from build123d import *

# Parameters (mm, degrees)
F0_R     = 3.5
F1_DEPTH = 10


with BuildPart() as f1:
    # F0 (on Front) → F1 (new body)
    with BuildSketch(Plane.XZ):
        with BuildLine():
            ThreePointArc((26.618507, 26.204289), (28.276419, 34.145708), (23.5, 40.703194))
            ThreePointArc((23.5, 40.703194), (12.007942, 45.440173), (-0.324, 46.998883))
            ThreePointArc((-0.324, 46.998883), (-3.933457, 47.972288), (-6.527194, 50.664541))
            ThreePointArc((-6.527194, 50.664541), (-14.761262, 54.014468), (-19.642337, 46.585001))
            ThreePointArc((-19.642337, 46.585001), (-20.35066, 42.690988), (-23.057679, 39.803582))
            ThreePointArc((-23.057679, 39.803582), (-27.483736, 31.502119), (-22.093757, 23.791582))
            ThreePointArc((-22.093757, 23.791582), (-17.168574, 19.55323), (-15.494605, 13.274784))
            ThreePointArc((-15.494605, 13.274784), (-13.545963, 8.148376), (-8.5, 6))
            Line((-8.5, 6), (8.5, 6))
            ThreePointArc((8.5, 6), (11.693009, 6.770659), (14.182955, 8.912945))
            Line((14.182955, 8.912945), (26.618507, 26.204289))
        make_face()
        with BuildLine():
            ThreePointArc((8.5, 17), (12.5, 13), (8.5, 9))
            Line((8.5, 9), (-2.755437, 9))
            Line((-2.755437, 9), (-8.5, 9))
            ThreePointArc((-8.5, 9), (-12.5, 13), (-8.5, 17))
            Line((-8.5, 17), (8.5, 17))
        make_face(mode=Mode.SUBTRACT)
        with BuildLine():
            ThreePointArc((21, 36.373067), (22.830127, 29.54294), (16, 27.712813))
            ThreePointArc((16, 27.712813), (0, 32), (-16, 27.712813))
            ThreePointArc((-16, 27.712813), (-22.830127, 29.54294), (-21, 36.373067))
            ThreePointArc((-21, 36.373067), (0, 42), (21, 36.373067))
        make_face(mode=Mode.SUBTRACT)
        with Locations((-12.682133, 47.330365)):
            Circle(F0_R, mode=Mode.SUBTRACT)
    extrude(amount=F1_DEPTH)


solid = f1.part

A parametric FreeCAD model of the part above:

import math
import FreeCAD as App
import Part
import Sketcher
from FreeCAD import Vector
Q = App.Units.Quantity

doc = App.newDocument("Part")
body = doc.addObject("PartDesign::Body", "Body")

# Sketch on XZ plane
sketch1 = body.newObject("Sketcher::SketchObject", "Sketch")
sketch1.AttachmentSupport = (doc.getObject("XZ_Plane"), [""])
sketch1.MapMode = "FlatFace"
sketch1.addGeometry([
    Part.ArcOfCircle(Part.Circle(Vector(18.5, 32, 0), Vector(0, 0, 1), 10), math.radians(-36), math.radians(60)),  # 0
    Part.ArcOfCircle(Part.Circle(Vector(0, 0, 0), Vector(0, 0, 1), 47), math.radians(60), math.radians(90)),  # 1
    Part.ArcOfCircle(Part.Circle(Vector(-0.4, 54, 0), Vector(0, 0, 1), 7), math.radians(-152), math.radians(-90)),  # 2
    Part.ArcOfCircle(Part.Circle(Vector(-12.7, 47.3, 0), Vector(0, 0, 1), 7), math.radians(28), math.radians(186)),  # 3
    Part.ArcOfCircle(Part.Circle(Vector(-26.6, 45.8, 0), Vector(0, 0, 1), 7), math.radians(-60), math.radians(6)),  # 4
    Part.ArcOfCircle(Part.Circle(Vector(-18.5, 32, 0), Vector(0, 0, 1), 9), math.radians(120), math.radians(246)),  # 5
    Part.ArcOfCircle(Part.Circle(Vector(-26.5, 13.7, 0), Vector(0, 0, 1), 11), math.radians(-2), math.radians(66)),  # 6
    Part.ArcOfCircle(Part.Circle(Vector(-8.5, 13, 0), Vector(0, 0, 1), 7), math.radians(178), math.radians(270)),  # 7
    Part.LineSegment(Vector(-8.5, 6, 0), Vector(8.5, 6, 0)),  # 8
    Part.ArcOfCircle(Part.Circle(Vector(8.5, 13, 0), Vector(0, 0, 1), 7), math.radians(-90), math.radians(-36)),  # 9
    Part.LineSegment(Vector(14.2, 8.9, 0), Vector(26.6, 26.2, 0)),  # 10
    Part.LineSegment(Vector(-8.5, 17, 0), Vector(8.5, 17, 0)),  # 11
    Part.ArcOfCircle(Part.Circle(Vector(8.5, 13, 0), Vector(0, 0, 1), 4), math.radians(-90), math.radians(90)),  # 12
    Part.LineSegment(Vector(8.5, 9, 0), Vector(-8.5, 9, 0)),  # 13
    Part.ArcOfCircle(Part.Circle(Vector(-8.5, 13, 0), Vector(0, 0, 1), 4), math.radians(90), math.radians(270)),  # 14
    Part.Circle(Vector(-12.7, 47.3, 0), Vector(0, 0, 1), 3.5),  # 15
    Part.ArcOfCircle(Part.Circle(Vector(0, 0, 0), Vector(0, 0, 1), 42), math.radians(60), math.radians(120)),  # 16
    Part.ArcOfCircle(Part.Circle(Vector(18.5, 32, 0), Vector(0, 0, 1), 5), math.radians(-120), math.radians(60)),  # 17
    Part.ArcOfCircle(Part.Circle(Vector(0, 0, 0), Vector(0, 0, 1), 32), math.radians(60), math.radians(120)),  # 18
    Part.ArcOfCircle(Part.Circle(Vector(-18.5, 32, 0), Vector(0, 0, 1), 5), math.radians(120), math.radians(300)),  # 19
], False)
sketch1.addConstraint([
    Sketcher.Constraint("Tangent", 0, 2, 1, 1),
    Sketcher.Constraint("Tangent", 1, 2, 2, 2),
    Sketcher.Constraint("Tangent", 2, 1, 3, 1),
    Sketcher.Constraint("Tangent", 3, 2, 4, 2),
    Sketcher.Constraint("Tangent", 4, 1, 5, 1),
    Sketcher.Constraint("Tangent", 5, 2, 6, 2),
    Sketcher.Constraint("Tangent", 6, 1, 7, 1),
    Sketcher.Constraint("Tangent", 7, 2, 8, 1),
    Sketcher.Constraint("Tangent", 8, 2, 9, 1),
    Sketcher.Constraint("Tangent", 9, 2, 10, 1),
    Sketcher.Constraint("Tangent", 10, 2, 0, 1),
    Sketcher.Constraint("Tangent", 11, 2, 12, 2),
    Sketcher.Constraint("Tangent", 12, 1, 13, 1),
    Sketcher.Constraint("Tangent", 13, 2, 14, 2),
    Sketcher.Constraint("Tangent", 14, 1, 11, 1),
    Sketcher.Constraint("Tangent", 16, 1, 17, 2),
    Sketcher.Constraint("Tangent", 17, 1, 18, 1),
    Sketcher.Constraint("Tangent", 18, 2, 19, 2),
    Sketcher.Constraint("Tangent", 19, 1, 16, 2),
    Sketcher.Constraint("Horizontal", 8),
    Sketcher.Constraint("Horizontal", 11),
    Sketcher.Constraint("Horizontal", 13),
    Sketcher.Constraint("Coincident", 1, 3, -1, 1),
    Sketcher.Constraint("Coincident", 16, 3, -1, 1),
    Sketcher.Constraint("Coincident", 18, 3, -1, 1),
    Sketcher.Constraint("Coincident", 12, 3, 9, 3),
    Sketcher.Constraint("Coincident", 14, 3, 7, 3),
    Sketcher.Constraint("Coincident", 15, 3, 3, 3),
    Sketcher.Constraint("Coincident", 17, 3, 0, 3),
    Sketcher.Constraint("Coincident", 19, 3, 5, 3),
    Sketcher.Constraint("Equal", 2, 3),
    Sketcher.Constraint("Equal", 3, 4),
    Sketcher.Constraint("Equal", 4, 7),
    Sketcher.Constraint("Horizontal", 0, 3, 5, 3),
    Sketcher.Constraint("Diameter", 15, Q("7 mm")),
    Sketcher.Constraint("Radius", 0, Q("10 mm")),
    Sketcher.Constraint("Radius", 1, Q("46.999999 mm")),
    Sketcher.Constraint("Radius", 2, Q("6.999999 mm")),
    Sketcher.Constraint("Radius", 5, Q("9 mm")),
    Sketcher.Constraint("Radius", 6, Q("11 mm")),
    Sketcher.Constraint("Radius", 12, Q("4 mm")),
    Sketcher.Constraint("Radius", 16, Q("42 mm")),
    Sketcher.Constraint("DistanceX", 8, 1, 8, 2, Q("17 mm")),
    Sketcher.Constraint("DistanceY", -1, 1, 7, 3, Q("13.000001 mm")),
    Sketcher.Constraint("DistanceX", -1, 1, 16, 1, Q("21 mm")),
    Sketcher.Constraint("DistanceX", 5, 3, 7, 3, Q("10.000001 mm")),
    Sketcher.Constraint("DistanceX", 1, 2, -1, 1, Q("0.324 mm")),
    Sketcher.Constraint("DistanceY", -1, 1, 3, 2, Q("46.585001 mm")),
])
pad1 = body.newObject("PartDesign::Pad", "Pad")
pad1.Profile = sketch1
pad1.Length = 10

doc.recompute()
